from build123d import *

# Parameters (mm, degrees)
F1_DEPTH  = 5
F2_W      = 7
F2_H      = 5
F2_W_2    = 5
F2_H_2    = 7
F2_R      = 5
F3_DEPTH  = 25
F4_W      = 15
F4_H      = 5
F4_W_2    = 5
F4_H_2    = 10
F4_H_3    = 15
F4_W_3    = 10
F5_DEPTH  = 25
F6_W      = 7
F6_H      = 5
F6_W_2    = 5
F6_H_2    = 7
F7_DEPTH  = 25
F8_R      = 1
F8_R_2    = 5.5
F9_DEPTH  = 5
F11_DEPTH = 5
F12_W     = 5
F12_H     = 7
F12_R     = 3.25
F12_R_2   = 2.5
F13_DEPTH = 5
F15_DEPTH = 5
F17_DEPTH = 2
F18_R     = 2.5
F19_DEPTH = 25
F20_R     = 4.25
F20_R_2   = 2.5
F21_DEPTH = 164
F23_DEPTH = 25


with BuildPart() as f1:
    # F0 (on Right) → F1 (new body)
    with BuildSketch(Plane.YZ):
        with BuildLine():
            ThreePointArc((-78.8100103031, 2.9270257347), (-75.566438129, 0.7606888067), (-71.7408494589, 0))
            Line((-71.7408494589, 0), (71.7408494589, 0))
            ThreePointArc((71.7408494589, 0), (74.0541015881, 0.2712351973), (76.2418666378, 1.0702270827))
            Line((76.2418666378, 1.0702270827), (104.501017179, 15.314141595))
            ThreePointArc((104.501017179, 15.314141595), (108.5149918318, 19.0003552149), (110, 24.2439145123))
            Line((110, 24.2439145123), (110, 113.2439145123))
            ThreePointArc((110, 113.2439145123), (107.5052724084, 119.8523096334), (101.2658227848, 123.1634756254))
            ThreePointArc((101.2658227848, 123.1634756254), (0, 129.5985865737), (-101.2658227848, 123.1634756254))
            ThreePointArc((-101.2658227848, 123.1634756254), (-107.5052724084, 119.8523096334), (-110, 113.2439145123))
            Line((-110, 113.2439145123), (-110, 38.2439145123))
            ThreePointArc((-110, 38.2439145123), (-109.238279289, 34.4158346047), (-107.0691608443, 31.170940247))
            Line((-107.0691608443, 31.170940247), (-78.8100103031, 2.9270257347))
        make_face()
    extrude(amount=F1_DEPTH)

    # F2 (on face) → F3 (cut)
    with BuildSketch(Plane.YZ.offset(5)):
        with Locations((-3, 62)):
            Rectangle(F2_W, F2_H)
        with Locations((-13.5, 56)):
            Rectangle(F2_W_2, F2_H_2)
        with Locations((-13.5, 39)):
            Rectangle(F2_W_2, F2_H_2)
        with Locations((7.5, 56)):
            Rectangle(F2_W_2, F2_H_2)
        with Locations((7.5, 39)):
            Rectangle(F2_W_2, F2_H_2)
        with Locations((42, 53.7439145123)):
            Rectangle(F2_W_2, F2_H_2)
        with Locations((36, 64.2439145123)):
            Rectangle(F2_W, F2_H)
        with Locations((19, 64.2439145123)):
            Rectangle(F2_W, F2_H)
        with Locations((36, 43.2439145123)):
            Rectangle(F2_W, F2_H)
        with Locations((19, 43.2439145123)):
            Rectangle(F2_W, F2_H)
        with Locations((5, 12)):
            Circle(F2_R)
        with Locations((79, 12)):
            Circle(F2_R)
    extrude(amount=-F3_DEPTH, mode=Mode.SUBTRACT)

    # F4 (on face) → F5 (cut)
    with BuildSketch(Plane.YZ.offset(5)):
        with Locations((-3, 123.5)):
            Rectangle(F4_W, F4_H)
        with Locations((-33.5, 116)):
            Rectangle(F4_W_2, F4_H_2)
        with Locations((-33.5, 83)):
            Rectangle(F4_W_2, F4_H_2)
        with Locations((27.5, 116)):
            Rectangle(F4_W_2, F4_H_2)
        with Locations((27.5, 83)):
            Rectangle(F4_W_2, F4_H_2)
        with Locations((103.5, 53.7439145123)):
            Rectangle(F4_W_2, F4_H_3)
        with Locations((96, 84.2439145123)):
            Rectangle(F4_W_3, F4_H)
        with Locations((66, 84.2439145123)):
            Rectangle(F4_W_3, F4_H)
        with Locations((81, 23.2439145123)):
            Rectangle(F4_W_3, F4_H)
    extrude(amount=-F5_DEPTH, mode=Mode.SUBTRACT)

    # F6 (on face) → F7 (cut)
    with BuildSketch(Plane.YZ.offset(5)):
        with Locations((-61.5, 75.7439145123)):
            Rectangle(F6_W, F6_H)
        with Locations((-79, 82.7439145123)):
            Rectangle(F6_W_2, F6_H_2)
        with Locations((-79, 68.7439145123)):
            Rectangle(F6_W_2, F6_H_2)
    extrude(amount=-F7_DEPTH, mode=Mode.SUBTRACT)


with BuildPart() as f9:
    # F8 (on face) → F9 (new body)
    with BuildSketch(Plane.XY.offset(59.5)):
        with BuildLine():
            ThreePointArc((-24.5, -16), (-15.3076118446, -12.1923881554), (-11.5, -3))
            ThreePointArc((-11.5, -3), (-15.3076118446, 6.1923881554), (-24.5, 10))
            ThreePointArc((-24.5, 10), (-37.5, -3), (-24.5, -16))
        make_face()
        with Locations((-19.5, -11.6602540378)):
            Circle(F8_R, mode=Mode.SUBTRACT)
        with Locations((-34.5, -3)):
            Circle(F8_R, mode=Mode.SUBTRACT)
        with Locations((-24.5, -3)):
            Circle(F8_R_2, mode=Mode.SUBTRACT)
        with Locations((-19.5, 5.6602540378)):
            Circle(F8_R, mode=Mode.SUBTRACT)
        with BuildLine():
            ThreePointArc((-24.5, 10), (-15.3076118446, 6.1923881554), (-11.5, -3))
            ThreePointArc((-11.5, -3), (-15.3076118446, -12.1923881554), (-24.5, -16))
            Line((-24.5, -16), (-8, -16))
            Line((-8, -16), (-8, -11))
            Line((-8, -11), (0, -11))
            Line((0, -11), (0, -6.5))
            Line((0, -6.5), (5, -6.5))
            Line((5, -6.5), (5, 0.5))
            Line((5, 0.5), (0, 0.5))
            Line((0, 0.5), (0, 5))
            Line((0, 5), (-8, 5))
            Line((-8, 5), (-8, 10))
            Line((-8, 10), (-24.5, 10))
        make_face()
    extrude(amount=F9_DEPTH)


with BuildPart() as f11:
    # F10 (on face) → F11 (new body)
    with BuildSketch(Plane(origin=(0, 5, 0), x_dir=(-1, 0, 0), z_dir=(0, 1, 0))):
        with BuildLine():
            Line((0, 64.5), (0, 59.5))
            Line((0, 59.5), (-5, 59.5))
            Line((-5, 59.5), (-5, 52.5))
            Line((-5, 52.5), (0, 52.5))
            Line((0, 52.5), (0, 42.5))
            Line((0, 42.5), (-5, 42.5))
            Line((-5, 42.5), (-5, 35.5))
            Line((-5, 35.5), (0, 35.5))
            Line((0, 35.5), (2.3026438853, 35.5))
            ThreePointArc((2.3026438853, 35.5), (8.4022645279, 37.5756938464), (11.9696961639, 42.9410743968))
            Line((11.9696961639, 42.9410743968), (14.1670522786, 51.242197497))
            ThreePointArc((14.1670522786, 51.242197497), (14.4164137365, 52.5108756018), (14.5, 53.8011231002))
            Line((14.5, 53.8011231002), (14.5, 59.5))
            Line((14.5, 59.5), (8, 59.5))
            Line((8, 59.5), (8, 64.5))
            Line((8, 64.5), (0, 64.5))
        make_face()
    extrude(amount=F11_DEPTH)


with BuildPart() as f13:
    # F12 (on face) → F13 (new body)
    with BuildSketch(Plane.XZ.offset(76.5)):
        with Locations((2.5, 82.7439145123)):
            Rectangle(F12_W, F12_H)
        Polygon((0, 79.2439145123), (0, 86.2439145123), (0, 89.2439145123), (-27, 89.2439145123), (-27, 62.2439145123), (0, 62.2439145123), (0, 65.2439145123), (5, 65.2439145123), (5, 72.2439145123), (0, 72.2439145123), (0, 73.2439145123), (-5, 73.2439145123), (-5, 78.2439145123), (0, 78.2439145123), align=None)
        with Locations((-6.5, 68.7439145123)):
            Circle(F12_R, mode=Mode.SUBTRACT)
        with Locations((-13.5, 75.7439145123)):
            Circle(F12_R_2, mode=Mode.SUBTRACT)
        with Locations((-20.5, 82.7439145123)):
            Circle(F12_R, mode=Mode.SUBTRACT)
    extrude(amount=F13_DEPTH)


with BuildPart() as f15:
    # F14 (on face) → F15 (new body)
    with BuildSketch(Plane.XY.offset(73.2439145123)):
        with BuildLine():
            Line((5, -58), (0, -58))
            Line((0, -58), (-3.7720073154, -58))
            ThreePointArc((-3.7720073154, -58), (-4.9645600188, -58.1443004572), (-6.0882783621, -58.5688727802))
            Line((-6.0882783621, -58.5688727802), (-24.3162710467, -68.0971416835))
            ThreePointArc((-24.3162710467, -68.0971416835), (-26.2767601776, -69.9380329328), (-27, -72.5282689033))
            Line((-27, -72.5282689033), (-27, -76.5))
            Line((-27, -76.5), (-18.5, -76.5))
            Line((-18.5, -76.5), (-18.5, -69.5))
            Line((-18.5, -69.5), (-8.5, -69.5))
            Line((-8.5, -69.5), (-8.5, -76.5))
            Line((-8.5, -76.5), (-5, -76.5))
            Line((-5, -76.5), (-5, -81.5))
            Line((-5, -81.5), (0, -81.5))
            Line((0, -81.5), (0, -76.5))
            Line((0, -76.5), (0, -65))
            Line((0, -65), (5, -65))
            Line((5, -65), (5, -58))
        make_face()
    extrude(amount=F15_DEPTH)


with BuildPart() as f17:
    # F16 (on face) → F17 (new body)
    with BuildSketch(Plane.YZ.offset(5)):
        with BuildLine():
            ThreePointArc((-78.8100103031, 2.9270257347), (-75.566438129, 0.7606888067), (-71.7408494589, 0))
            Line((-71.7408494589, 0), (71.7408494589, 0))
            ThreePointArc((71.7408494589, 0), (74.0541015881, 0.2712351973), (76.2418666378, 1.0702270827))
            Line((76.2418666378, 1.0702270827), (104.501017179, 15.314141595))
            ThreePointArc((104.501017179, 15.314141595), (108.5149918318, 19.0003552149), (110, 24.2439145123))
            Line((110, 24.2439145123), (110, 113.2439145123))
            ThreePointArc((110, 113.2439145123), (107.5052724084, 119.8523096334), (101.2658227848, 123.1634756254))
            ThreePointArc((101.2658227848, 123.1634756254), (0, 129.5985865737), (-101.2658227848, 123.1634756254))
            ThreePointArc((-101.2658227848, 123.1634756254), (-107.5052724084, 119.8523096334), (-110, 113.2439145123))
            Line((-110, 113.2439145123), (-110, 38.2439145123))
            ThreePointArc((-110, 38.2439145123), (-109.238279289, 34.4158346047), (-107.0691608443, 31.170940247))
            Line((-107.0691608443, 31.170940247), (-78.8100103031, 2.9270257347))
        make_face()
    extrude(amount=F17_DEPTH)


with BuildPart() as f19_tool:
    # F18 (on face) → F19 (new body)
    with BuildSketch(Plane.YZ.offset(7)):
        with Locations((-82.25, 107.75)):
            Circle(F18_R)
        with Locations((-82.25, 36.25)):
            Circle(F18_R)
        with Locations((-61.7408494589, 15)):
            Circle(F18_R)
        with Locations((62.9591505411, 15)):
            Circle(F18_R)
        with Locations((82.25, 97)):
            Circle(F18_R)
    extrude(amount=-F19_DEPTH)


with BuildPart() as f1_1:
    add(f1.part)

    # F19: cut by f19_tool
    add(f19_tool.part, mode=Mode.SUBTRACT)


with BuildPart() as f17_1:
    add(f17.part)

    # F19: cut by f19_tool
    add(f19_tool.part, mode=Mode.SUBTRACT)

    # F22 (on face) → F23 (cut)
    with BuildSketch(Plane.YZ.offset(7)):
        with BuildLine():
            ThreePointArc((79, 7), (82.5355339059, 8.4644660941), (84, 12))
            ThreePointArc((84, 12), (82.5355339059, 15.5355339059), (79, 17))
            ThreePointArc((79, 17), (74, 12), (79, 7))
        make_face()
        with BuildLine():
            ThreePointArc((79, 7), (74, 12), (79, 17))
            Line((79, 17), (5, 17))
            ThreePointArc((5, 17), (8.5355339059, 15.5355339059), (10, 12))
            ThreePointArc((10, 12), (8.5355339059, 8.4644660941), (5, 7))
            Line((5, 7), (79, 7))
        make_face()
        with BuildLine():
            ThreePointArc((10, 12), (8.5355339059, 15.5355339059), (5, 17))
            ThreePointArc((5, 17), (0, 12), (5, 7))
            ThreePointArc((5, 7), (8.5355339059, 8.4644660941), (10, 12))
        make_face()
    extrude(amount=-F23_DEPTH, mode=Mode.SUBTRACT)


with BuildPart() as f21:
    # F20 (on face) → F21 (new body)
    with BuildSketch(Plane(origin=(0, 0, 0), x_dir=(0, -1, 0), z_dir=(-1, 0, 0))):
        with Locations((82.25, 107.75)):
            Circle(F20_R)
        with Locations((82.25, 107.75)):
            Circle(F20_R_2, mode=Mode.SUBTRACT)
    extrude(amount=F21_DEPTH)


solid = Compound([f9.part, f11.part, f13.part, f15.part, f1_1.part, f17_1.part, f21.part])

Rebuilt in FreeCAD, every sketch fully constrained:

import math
import FreeCAD as App
import Part
import Sketcher
from FreeCAD import Vector
Q = App.Units.Quantity


def add_polygon(sketch, points):
    """Adds a closed chain of lines whose ends are joined by coincident constraints."""
    first, n = sketch.GeometryCount, len(points)
    for a, b in zip(points, points[1:] + points[:1]):
        sketch.addGeometry(Part.LineSegment(App.Vector(*a, 0), App.Vector(*b, 0)), False)
    for i in range(n):
        sketch.addConstraint(Sketcher.Constraint("Coincident", first + i, 2, first + (i + 1) % n, 1))

doc = App.newDocument("Part")
body = doc.addObject("PartDesign::Body", "Body")

# Sketch on YZ plane
sketch1 = doc.addObject("Sketcher::SketchObject", "Sketch")
body.addObject(sketch1)
sketch1.AttachmentSupport = (doc.YZ_Plane, [""])
sketch1.MapMode = "FlatFace"
sketch1.addGeometry([
    Part.ArcOfCircle(Part.Circle(Vector(-71.7, 10, 0), Vector(0, 0, 1), 10), math.radians(-135), math.radians(-90)),  # 0
    Part.LineSegment(Vector(-71.7, 0, 0), Vector(71.7, 0, 0)),  # 1
    Part.ArcOfCircle(Part.Circle(Vector(71.7, 10, 0), Vector(0, 0, 1), 10), math.radians(-90), math.radians(-63)),  # 2
    Part.LineSegment(Vector(76.2, 1.1, 0), Vector(104.5, 15.3, 0)),  # 3
    Part.ArcOfCircle(Part.Circle(Vector(100, 24.2, 0), Vector(0, 0, 1), 10), math.radians(-63), math.radians(0)),  # 4
    Part.LineSegment(Vector(110, 24.2, 0), Vector(110, 113.2, 0)),  # 5
    Part.ArcOfCircle(Part.Circle(Vector(100, 113.2, 0), Vector(0, 0, 1), 10), math.radians(0), math.radians(83)),  # 6
    Part.ArcOfCircle(Part.Circle(Vector(0, -670.4, 0), Vector(0, 0, 1), 800), math.radians(82.73), math.radians(97.27)),  # 7
    Part.ArcOfCircle(Part.Circle(Vector(-100, 113.2, 0), Vector(0, 0, 1), 10), math.radians(97), math.radians(180)),  # 8
    Part.LineSegment(Vector(-110, 113.2, 0), Vector(-110, 38.2, 0)),  # 9
    Part.ArcOfCircle(Part.Circle(Vector(-100, 38.2, 0), Vector(0, 0, 1), 10), math.radians(180), math.radians(225)),  # 10
    Part.LineSegment(Vector(-107.1, 31.2, 0), Vector(-78.8, 2.9, 0)),  # 11
], False)
sketch1.addConstraint([
    Sketcher.Constraint("Tangent", 0, 2, 1, 1),
    Sketcher.Constraint("Tangent", 1, 2, 2, 1),
    Sketcher.Constraint("Tangent", 2, 2, 3, 1),
    Sketcher.Constraint("Tangent", 3, 2, 4, 1),
    Sketcher.Constraint("Tangent", 4, 2, 5, 1),
    Sketcher.Constraint("Tangent", 5, 2, 6, 1),
    Sketcher.Constraint("Tangent", 6, 2, 7, 1),
    Sketcher.Constraint("Tangent", 7, 2, 8, 1),
    Sketcher.Constraint("Tangent", 8, 2, 9, 1),
    Sketcher.Constraint("Tangent", 9, 2, 10, 1),
    Sketcher.Constraint("Tangent", 10, 2, 11, 1),
    Sketcher.Constraint("Tangent", 11, 2, 0, 1),
    Sketcher.Constraint("Horizontal", 1),
    Sketcher.Constraint("Vertical", 5),
    Sketcher.Constraint("Vertical", 9),
    Sketcher.Constraint("Equal", 0, 2),
    Sketcher.Constraint("Equal", 2, 4),
    Sketcher.Constraint("Equal", 4, 6),
    Sketcher.Constraint("Equal", 6, 8),
    Sketcher.Constraint("Equal", 8, 10),
    Sketcher.Constraint("Symmetric", 0, 2, 1, 2, -1, 1),
    Sketcher.Constraint("Symmetric", 6, 3, 8, 3, -2),
    Sketcher.Constraint("Radius", 0, Q("10 mm")),
    Sketcher.Constraint("Radius", 7, Q("800 mm")),
    Sketcher.Constraint("DistanceY", 5, 1, 5, 2, Q("89 mm")),
    Sketcher.Constraint("DistanceY", 9, 2, 9, 1, Q("75 mm")),
    Sketcher.Constraint("DistanceX", -1, 1, 4, 3, Q("100 mm")),
    Sketcher.Constraint("DistanceX", 1, 1, 1, 2, Q("143.481699 mm")),
    Sketcher.Constraint("Distance", 11, Q("39.953702 mm")),
])
pad1 = doc.addObject("PartDesign::Pad", "Pad")
body.addObject(pad1)
pad1.Profile = sketch1
pad1.Length = 5

# Sketch on YZ plane
sketch2 = doc.addObject("Sketcher::SketchObject", "Sketch001")
body.addObject(sketch2)
sketch2.AttachmentSupport = (doc.YZ_Plane, [""])
sketch2.MapMode = "FlatFace"
sketch2.AttachmentOffset = App.Placement(Vector(0, 0, 5), App.Rotation())
add_polygon(sketch2, [(-6, 64), (-6, 60), (0, 60), (0, 64)])  # lines 0-3
add_polygon(sketch2, [(-16, 60), (-16, 52), (-11, 52), (-11, 60)])  # lines 4-7
add_polygon(sketch2, [(-16, 42), (-16, 36), (-11, 36), (-11, 42)])  # lines 8-11
add_polygon(sketch2, [(5, 60), (5, 52), (10, 52), (10, 60)])  # lines 12-15
add_polygon(sketch2, [(5, 42), (5, 36), (10, 36), (10, 42)])  # lines 16-19
add_polygon(sketch2, [(40, 57), (40, 50), (44, 50), (44, 57)])  # lines 20-23
add_polygon(sketch2, [(32, 67), (32, 62), (40, 62), (40, 67)])  # lines 24-27
add_polygon(sketch2, [(16, 67), (16, 62), (22, 62), (22, 67)])  # lines 28-31
add_polygon(sketch2, [(32, 46), (32, 41), (40, 41), (40, 46)])  # lines 32-35
add_polygon(sketch2, [(16, 46), (16, 41), (22, 41), (22, 46)])  # lines 36-39
sketch2.addGeometry(Part.Circle(Vector(5, 12, 0), Vector(0, 0, 1), 5), False)  # 40
sketch2.addGeometry(Part.Circle(Vector(79, 12, 0), Vector(0, 0, 1), 5), False)  # 41
sketch2.addConstraint([
    Sketcher.Constraint("Vertical", 0),
    Sketcher.Constraint("Horizontal", 1),
    Sketcher.Constraint("Vertical", 2),
    Sketcher.Constraint("Horizontal", 3),
    Sketcher.Constraint("Vertical", 4),
    Sketcher.Constraint("Horizontal", 5),
    Sketcher.Constraint("Vertical", 6),
    Sketcher.Constraint("Horizontal", 7),
    Sketcher.Constraint("Vertical", 8),
    Sketcher.Constraint("Horizontal", 9),
    Sketcher.Constraint("Vertical", 10),
    Sketcher.Constraint("Horizontal", 11),
    Sketcher.Constraint("Vertical", 12),
    Sketcher.Constraint("Horizontal", 13),
    Sketcher.Constraint("Vertical", 14),
    Sketcher.Constraint("Horizontal", 15),
    Sketcher.Constraint("Vertical", 16),
    Sketcher.Constraint("Horizontal", 17),
    Sketcher.Constraint("Vertical", 18),
    Sketcher.Constraint("Horizontal", 19),
    Sketcher.Constraint("Vertical", 20),
    Sketcher.Constraint("Horizontal", 21),
    Sketcher.Constraint("Vertical", 22),
    Sketcher.Constraint("Horizontal", 23),
    Sketcher.Constraint("Vertical", 24),
    Sketcher.Constraint("Horizontal", 25),
    Sketcher.Constraint("Vertical", 26),
    Sketcher.Constraint("Horizontal", 27),
    Sketcher.Constraint("Vertical", 28),
    Sketcher.Constraint("Horizontal", 29),
    Sketcher.Constraint("Vertical", 30),
    Sketcher.Constraint("Horizontal", 31),
    Sketcher.Constraint("Vertical", 32),
    Sketcher.Constraint("Horizontal", 33),
    Sketcher.Constraint("Vertical", 34),
    Sketcher.Constraint("Horizontal", 35),
    Sketcher.Constraint("Vertical", 36),
    Sketcher.Constraint("Horizontal", 37),
    Sketcher.Constraint("Vertical", 38),
    Sketcher.Constraint("Horizontal", 39),
    Sketcher.Constraint("Equal", 40, 41),
    Sketcher.Constraint("Horizontal", 40, 3, 41, 3),
    Sketcher.Constraint("Horizontal", 1, 2, 6, 2),
    Sketcher.Constraint("Horizontal", 5, 2, 12, 2),
    Sketcher.Constraint("Horizontal", 7, 2, 14, 2),
    Sketcher.Constraint("Horizontal", 9, 2, 16, 2),
    Sketcher.Constraint("Horizontal", 11, 2, 18, 2),
    Sketcher.Constraint("Horizontal", 25, 2, 28, 2),
    Sketcher.Constraint("Horizontal", 27, 2, 30, 2),
    Sketcher.Constraint("Horizontal", 33, 2, 36, 2),
    Sketcher.Constraint("Horizontal", 35, 2, 38, 2),
    Sketcher.Constraint("Vertical", 7, 2, 8, 2),
    Sketcher.Constraint("Vertical", 6, 2, 9, 2),
    Sketcher.Constraint("Vertical", 40, 3, 12, 2),
    Sketcher.Constraint("Vertical", 15, 2, 16, 2),
    Sketcher.Constraint("Vertical", 14, 2, 17, 2),
    Sketcher.Constraint("Vertical", 23, 2, 25, 2),
    Sketcher.Constraint("Vertical", 27, 2, 32, 2),
    Sketcher.Constraint("Vertical", 26, 2, 33, 2),
    Sketcher.Constraint("Vertical", 31, 2, 36, 2),
    Sketcher.Constraint("Vertical", 30, 2, 37, 2),
    Sketcher.Constraint("Equal", 11, 13),
    Sketcher.Constraint("Equal", 19, 21),
    Sketcher.Constraint("Equal", 3, 25),
    Sketcher.Constraint("Equal", 27, 29),
    Sketcher.Constraint("Equal", 23, 0),
    Sketcher.Constraint("Equal", 39, 4),
    Sketcher.Constraint("Equal", 6, 8),
    Sketcher.Constraint("Equal", 18, 20),
    Sketcher.Constraint("Equal", 2, 24),
    Sketcher.Constraint("Equal", 30, 32),
    Sketcher.Constraint("Diameter", 40, Q("10 mm")),
    Sketcher.Constraint("DistanceX", 1, 1, 1, 2, Q("7 mm")),
    Sketcher.Constraint("DistanceX", 5, 1, 5, 2, Q("5 mm")),
    Sketcher.Constraint("DistanceX", -1, 1, 40, 3, Q("5 mm")),
    Sketcher.Constraint("DistanceY", -1, 1, 40, 3, Q("12 mm")),
    Sketcher.Constraint("DistanceX", -1, 1, 41, 3, Q("79 mm")),
    Sketcher.Constraint("DistanceX", 4, 2, -1, 1, Q("16 mm")),
    Sketcher.Constraint("DistanceY", 8, 2, 4, 2, Q("17 mm")),
    Sketcher.Constraint("DistanceX", 1, 2, 28, 2, Q("15 mm")),
    Sketcher.Constraint("DistanceX", 29, 2, 24, 2, Q("10 mm")),
    Sketcher.Constraint("DistanceY", 32, 2, 24, 2, Q("21 mm")),
    Sketcher.Constraint("DistanceX", 0, 2, -1, 1, Q("6.5 mm")),
    Sketcher.Constraint("DistanceY", -1, 1, 0, 2, Q("59.5 mm")),
    Sketcher.Constraint("DistanceY", 23, 2, 24, 2, Q("4.5 mm")),
    Sketcher.Constraint("DistanceY", -1, 1, 20, 2, Q("50.243915 mm")),
])
pocket1 = doc.addObject("PartDesign::Pocket", "Pocket")
body.addObject(pocket1)
pocket1.Profile = sketch2
pocket1.Length = 25

# Sketch on YZ plane
sketch3 = doc.addObject("Sketcher::SketchObject", "Sketch002")
body.addObject(sketch3)
sketch3.AttachmentSupport = (doc.YZ_Plane, [""])
sketch3.MapMode = "FlatFace"
sketch3.AttachmentOffset = App.Placement(Vector(0, 0, 5), App.Rotation())
add_polygon(sketch3, [(-10, 126), (-10, 121), (4, 121), (4, 126)])  # lines 0-3
add_polygon(sketch3, [(-36, 121), (-36, 111), (-31, 111), (-31, 121)])  # lines 4-7
add_polygon(sketch3, [(-36, 88), (-36, 78), (-31, 78), (-31, 88)])  # lines 8-11
add_polygon(sketch3, [(25, 121), (25, 111), (30, 111), (30, 121)])  # lines 12-15
add_polygon(sketch3, [(25, 88), (25, 78), (30, 78), (30, 88)])  # lines 16-19
add_polygon(sketch3, [(101, 61), (101, 46), (106, 46), (106, 61)])  # lines 20-23
add_polygon(sketch3, [(91, 87), (91, 82), (101, 82), (101, 87)])  # lines 24-27
add_polygon(sketch3, [(61, 87), (61, 82), (71, 82), (71, 87)])  # lines 28-31
add_polygon(sketch3, [(76, 26), (76, 21), (86, 21), (86, 26)])  # lines 32-35
sketch3.addConstraint([
    Sketcher.Constraint("Vertical", 0),
    Sketcher.Constraint("Horizontal", 1),
    Sketcher.Constraint("Vertical", 2),
    Sketcher.Constraint("Horizontal", 3),
    Sketcher.Constraint("Vertical", 4),
    Sketcher.Constraint("Horizontal", 5),
    Sketcher.Constraint("Vertical", 6),
    Sketcher.Constraint("Horizontal", 7),
    Sketcher.Constraint("Vertical", 8),
    Sketcher.Constraint("Horizontal", 9),
    Sketcher.Constraint("Vertical", 10),
    Sketcher.Constraint("Horizontal", 11),
    Sketcher.Constraint("Vertical", 12),
    Sketcher.Constraint("Horizontal", 13),
    Sketcher.Constraint("Vertical", 14),
    Sketcher.Constraint("Horizontal", 15),
    Sketcher.Constraint("Vertical", 16),
    Sketcher.Constraint("Horizontal", 17),
    Sketcher.Constraint("Vertical", 18),
    Sketcher.Constraint("Horizontal", 19),
    Sketcher.Constraint("Vertical", 20),
    Sketcher.Constraint("Horizontal", 21),
    Sketcher.Constraint("Vertical", 22),
    Sketcher.Constraint("Horizontal", 23),
    Sketcher.Constraint("Vertical", 24),
    Sketcher.Constraint("Horizontal", 25),
    Sketcher.Constraint("Vertical", 26),
    Sketcher.Constraint("Horizontal", 27),
    Sketcher.Constraint("Vertical", 28),
    Sketcher.Constraint("Horizontal", 29),
    Sketcher.Constraint("Vertical", 30),
    Sketcher.Constraint("Horizontal", 31),
    Sketcher.Constraint("Vertical", 32),
    Sketcher.Constraint("Horizontal", 33),
    Sketcher.Constraint("Vertical", 34),
    Sketcher.Constraint("Horizontal", 35),
    Sketcher.Constraint("Horizontal", 1, 2, 6, 2),
    Sketcher.Constraint("Horizontal", 5, 2, 12, 2),
    Sketcher.Constraint("Horizontal", 7, 2, 14, 2),
    Sketcher.Constraint("Horizontal", 9, 2, 16, 2),
    Sketcher.Constraint("Horizontal", 11, 2, 18, 2),
    Sketcher.Constraint("Horizontal", 25, 2, 28, 2),
    Sketcher.Constraint("Horizontal", 27, 2, 30, 2),
    Sketcher.Constraint("Vertical", 7, 2, 8, 2),
    Sketcher.Constraint("Vertical", 6, 2, 9, 2),
    Sketcher.Constraint("Vertical", 15, 2, 16, 2),
    Sketcher.Constraint("Vertical", 14, 2, 17, 2),
    Sketcher.Constraint("Vertical", 23, 2, 25, 2),
    Sketcher.Constraint("Equal", 11, 13),
    Sketcher.Constraint("Equal", 19, 21),
    Sketcher.Constraint("Equal", 27, 29),
    Sketcher.Constraint("Equal", 31, 33),
    Sketcher.Constraint("Equal", 23, 0),
    Sketcher.Constraint("Equal", 35, 4),
    Sketcher.Constraint("Equal", 6, 8),
    Sketcher.Constraint("Equal", 3, 20),
    Sketcher.Constraint("Equal", 2, 24),
    Sketcher.Constraint("Equal", 30, 32),
    Sketcher.Constraint("DistanceX", 1, 1, 1, 2, Q("15 mm")),
    Sketcher.Constraint("DistanceX", 5, 1, 5, 2, Q("5 mm")),
    Sketcher.Constraint("DistanceX", 25, 1, 25, 2, Q("10 mm")),
    Sketcher.Constraint("DistanceY", -1, 1, 0, 2, Q("121 mm")),
    Sketcher.Constraint("DistanceX", 4, 2, -1, 1, Q("36 mm")),
    Sketcher.Constraint("DistanceY", -1, 1, 8, 2, Q("78 mm")),
    Sketcher.Constraint("DistanceX", -1, 1, 12, 2, Q("25 mm")),
    Sketcher.Constraint("DistanceX", -1, 1, 20, 2, Q("101 mm")),
    Sketcher.Constraint("DistanceX", -1, 1, 28, 2, Q("61 mm")),
    Sketcher.Constraint("DistanceX", -1, 1, 32, 2, Q("76 mm")),
    Sketcher.Constraint("DistanceY", 32, 2, 29, 2, Q("61 mm")),
    Sketcher.Constraint("DistanceX", 0, 2, -1, 1, Q("10.5 mm")),
    Sketcher.Constraint("DistanceY", 23, 2, 24, 2, Q("20.5 mm")),
    Sketcher.Constraint("DistanceY", -1, 1, 20, 2, Q("46.243915 mm")),
])
pocket2 = doc.addObject("PartDesign::Pocket", "Pocket001")
body.addObject(pocket2)
pocket2.Profile = sketch3
pocket2.Length = 25

# Sketch on YZ plane
sketch4 = doc.addObject("Sketcher::SketchObject", "Sketch003")
body.addObject(sketch4)
sketch4.AttachmentSupport = (doc.YZ_Plane, [""])
sketch4.MapMode = "FlatFace"
sketch4.AttachmentOffset = App.Placement(Vector(0, 0, 5), App.Rotation())
add_polygon(sketch4, [(-65, 78), (-65, 73), (-58, 73), (-58, 78)])  # lines 0-3
add_polygon(sketch4, [(-82, 86), (-82, 79), (-76, 79), (-76, 86)])  # lines 4-7
add_polygon(sketch4, [(-82, 72), (-82, 65), (-76, 65), (-76, 72)])  # lines 8-11
sketch4.addConstraint([
    Sketcher.Constraint("Vertical", 0),
    Sketcher.Constraint("Horizontal", 1),
    Sketcher.Constraint("Vertical", 2),
    Sketcher.Constraint("Horizontal", 3),
    Sketcher.Constraint("Vertical", 4),
    Sketcher.Constraint("Horizontal", 5),
    Sketcher.Constraint("Vertical", 6),
    Sketcher.Constraint("Horizontal", 7),
    Sketcher.Constraint("Vertical", 8),
    Sketcher.Constraint("Horizontal", 9),
    Sketcher.Constraint("Vertical", 10),
    Sketcher.Constraint("Horizontal", 11),
    Sketcher.Constraint("Vertical", 7, 2, 8, 2),
    Sketcher.Constraint("Vertical", 6, 2, 9, 2),
    Sketcher.Constraint("Equal", 11, 0),
    Sketcher.Constraint("Equal", 3, 4),
    Sketcher.Constraint("Equal", 6, 8),
    Sketcher.Constraint("DistanceX", 1, 1, 1, 2, Q("7 mm")),
    Sketcher.Constraint("DistanceX", 5, 1, 5, 2, Q("5 mm")),
    Sketcher.Constraint("DistanceX", 0, 2, -1, 1, Q("65 mm")),
    Sketcher.Constraint("DistanceY", 3, 2, 4, 2, Q("1 mm")),
    Sketcher.Constraint("DistanceY", 8, 2, 4, 2, Q("14 mm")),
    Sketcher.Constraint("DistanceX", 4, 2, -1, 1, Q("81.5 mm")),
    Sketcher.Constraint("DistanceY", -1, 1, 0, 2, Q("73.243915 mm")),
])
pocket3 = doc.addObject("PartDesign::Pocket", "Pocket002")
body.addObject(pocket3)
pocket3.Profile = sketch4
pocket3.Length = 25
body2 = doc.addObject("PartDesign::Body", "Body001")

# Sketch on XY plane
sketch5 = doc.addObject("Sketcher::SketchObject", "Sketch004")
body2.addObject(sketch5)
sketch5.AttachmentSupport = (doc.getObject("XY_Plane001"), [""])
sketch5.MapMode = "FlatFace"
sketch5.AttachmentOffset = App.Placement(Vector(0, 0, 59.5), App.Rotation())
sketch5.addGeometry([
    Part.ArcOfCircle(Part.Circle(Vector(-24.5, -3, 0), Vector(0, 0, 1), 13), math.radians(90), math.radians(270)),  # 0
    Part.LineSegment(Vector(-24.5, -16, 0), Vector(-8, -16, 0)),  # 1
    Part.LineSegment(Vector(-8, -16, 0), Vector(-8, -11, 0)),  # 2
    Part.LineSegment(Vector(-8, -11, 0), Vector(0, -11, 0)),  # 3
    Part.LineSegment(Vector(0, -11, 0), Vector(0, -6.5, 0)),  # 4
    Part.LineSegment(Vector(0, -6.5, 0), Vector(5, -6.5, 0)),  # 5
    Part.LineSegment(Vector(5, -6.5, 0), Vector(5, 0.5, 0)),  # 6
    Part.LineSegment(Vector(5, 0.5, 0), Vector(0, 0.5, 0)),  # 7
    Part.LineSegment(Vector(0, 0.5, 0), Vector(0, 5, 0)),  # 8
    Part.LineSegment(Vector(0, 5, 0), Vector(-8, 5, 0)),  # 9
    Part.LineSegment(Vector(-8, 5, 0), Vector(-8, 10, 0)),  # 10
    Part.LineSegment(Vector(-8, 10, 0), Vector(-24.5, 10, 0)),  # 11
    Part.Circle(Vector(-19.5, -11.7, 0), Vector(0, 0, 1), 1),  # 12
    Part.Circle(Vector(-34.5, -3, 0), Vector(0, 0, 1), 1),  # 13
    Part.Circle(Vector(-24.5, -3, 0), Vector(0, 0, 1), 5.5),  # 14
    Part.Circle(Vector(-19.5, 5.7, 0), Vector(0, 0, 1), 1),  # 15
], False)
sketch5.addConstraint([
    Sketcher.Constraint("Tangent", 0, 2, 1, 1),
    Sketcher.Constraint("Coincident", 1, 2, 2, 1),
    Sketcher.Constraint("Coincident", 2, 2, 3, 1),
    Sketcher.Constraint("Coincident", 3, 2, 4, 1),
    Sketcher.Constraint("Coincident", 4, 2, 5, 1),
    Sketcher.Constraint("Coincident", 5, 2, 6, 1),
    Sketcher.Constraint("Coincident", 6, 2, 7, 1),
    Sketcher.Constraint("Coincident", 7, 2, 8, 1),
    Sketcher.Constraint("Coincident", 8, 2, 9, 1),
    Sketcher.Constraint("Coincident", 9, 2, 10, 1),
    Sketcher.Constraint("Coincident", 10, 2, 11, 1),
    Sketcher.Constraint("Tangent", 11, 2, 0, 1),
    Sketcher.Constraint("Horizontal", 1),
    Sketcher.Constraint("Vertical", 2),
    Sketcher.Constraint("Horizontal", 3),
    Sketcher.Constraint("Vertical", 4),
    Sketcher.Constraint("Horizontal", 5),
    Sketcher.Constraint("Vertical", 6),
    Sketcher.Constraint("Horizontal", 7),
    Sketcher.Constraint("Vertical", 8),
    Sketcher.Constraint("Horizontal", 9),
    Sketcher.Constraint("Vertical", 10),
    Sketcher.Constraint("Horizontal", 11),
    Sketcher.Constraint("Coincident", 14, 3, 0, 3),
    Sketcher.Constraint("Equal", 12, 13),
    Sketcher.Constraint("Equal", 13, 15),
    Sketcher.Constraint("PointOnObject", 3, 2, -2),
    Sketcher.Constraint("PointOnObject", 7, 2, -2),
    Sketcher.Constraint("Horizontal", 0, 3, 13, 3),
    Sketcher.Constraint("Vertical", 12, 3, 15, 3),
    Sketcher.Constraint("Vertical", 2, 2, 9, 2),
    Sketcher.Constraint("Equal", 7, 2),
    Sketcher.Constraint("Equal", 4, 8),
    Sketcher.Constraint("Equal", 2, 10),
    Sketcher.Constraint("Diameter", 12, Q("2 mm")),
    Sketcher.Constraint("Diameter", 14, Q("11 mm")),
    Sketcher.Constraint("Radius", 0, Q("13 mm")),
    Sketcher.Constraint("DistanceX", 3, 1, 3, 2, Q("8 mm")),
    Sketcher.Constraint("DistanceX", 5, 1, 5, 2, Q("5 mm")),
    Sketcher.Constraint("DistanceY", 6, 1, 6, 2, Q("7 mm")),
    Sketcher.Constraint("DistanceX", 1, 1, 1, 2, Q("16.5 mm")),
    Sketcher.Constraint("DistanceY", 0, 3, -1, 1, Q("3 mm")),
    Sketcher.Constraint("DistanceX", 0, 3, 12, 3, Q("5 mm")),
    Sketcher.Constraint("DistanceX", 13, 3, 0, 3, Q("10 mm")),
    Sketcher.Constraint("DistanceY", 12, 3, 15, 3, Q("17.320508 mm")),
    Sketcher.Constraint("DistanceY", 12, 3, -1, 1, Q("11.660254 mm")),
])
pad2 = doc.addObject("PartDesign::Pad", "Pad001")
body2.addObject(pad2)
pad2.Profile = sketch5
pad2.Length = 5
body3 = doc.addObject("PartDesign::Body", "Body002")

# Sketch on XZ plane
sketch6 = doc.addObject("Sketcher::SketchObject", "Sketch005")
body3.addObject(sketch6)
sketch6.AttachmentSupport = (doc.getObject("XZ_Plane002"), [""])
sketch6.MapMode = "FlatFace"
sketch6.AttachmentOffset = App.Placement(Vector(0, 0, -5), App.Rotation())
sketch6.addGeometry([
    Part.LineSegment(Vector(0, 64.5, 0), Vector(0, 59.5, 0)),  # 0
    Part.LineSegment(Vector(0, 59.5, 0), Vector(5, 59.5, 0)),  # 1
    Part.LineSegment(Vector(5, 59.5, 0), Vector(5, 52.5, 0)),  # 2
    Part.LineSegment(Vector(5, 52.5, 0), Vector(0, 52.5, 0)),  # 3
    Part.LineSegment(Vector(0, 52.5, 0), Vector(0, 42.5, 0)),  # 4
    Part.LineSegment(Vector(0, 42.5, 0), Vector(5, 42.5, 0)),  # 5
    Part.LineSegment(Vector(5, 42.5, 0), Vector(5, 35.5, 0)),  # 6
    Part.LineSegment(Vector(5, 35.5, 0), Vector(-2.3, 35.5, 0)),  # 7
    Part.ArcOfCircle(Part.Circle(Vector(-2.3, 45.5, 0), Vector(0, 0, 1), 10), math.radians(-165), math.radians(-90)),  # 8
    Part.LineSegment(Vector(-12, 42.9, 0), Vector(-14.2, 51.2, 0)),  # 9
    Part.ArcOfCircle(Part.Circle(Vector(-4.5, 53.8, 0), Vector(0, 0, 1), 10), math.radians(180), math.radians(194.83)),  # 10
    Part.LineSegment(Vector(-14.5, 53.8, 0), Vector(-14.5, 59.5, 0)),  # 11
    Part.LineSegment(Vector(-14.5, 59.5, 0), Vector(-8, 59.5, 0)),  # 12
    Part.LineSegment(Vector(-8, 59.5, 0), Vector(-8, 64.5, 0)),  # 13
    Part.LineSegment(Vector(-8, 64.5, 0), Vector(0, 64.5, 0)),  # 14
], False)
sketch6.addConstraint([
    Sketcher.Constraint("Coincident", 0, 2, 1, 1),
    Sketcher.Constraint("Coincident", 1, 2, 2, 1),
    Sketcher.Constraint("Coincident", 2, 2, 3, 1),
    Sketcher.Constraint("Coincident", 3, 2, 4, 1),
    Sketcher.Constraint("Coincident", 4, 2, 5, 1),
    Sketcher.Constraint("Coincident", 5, 2, 6, 1),
    Sketcher.Constraint("Coincident", 6, 2, 7, 1),
    Sketcher.Constraint("Tangent", 7, 2, 8, 2),
    Sketcher.Constraint("Tangent", 8, 1, 9, 1),
    Sketcher.Constraint("Tangent", 9, 2, 10, 2),
    Sketcher.Constraint("Tangent", 10, 1, 11, 1),
    Sketcher.Constraint("Coincident", 11, 2, 12, 1),
    Sketcher.Constraint("Coincident", 12, 2, 13, 1),
    Sketcher.Constraint("Coincident", 13, 2, 14, 1),
    Sketcher.Constraint("Coincident", 14, 2, 0, 1),
    Sketcher.Constraint("Vertical", 0),
    Sketcher.Constraint("Horizontal", 1),
    Sketcher.Constraint("Vertical", 2),
    Sketcher.Constraint("Horizontal", 3),
    Sketcher.Constraint("Vertical", 4),
    Sketcher.Constraint("Horizontal", 5),
    Sketcher.Constraint("Vertical", 6),
    Sketcher.Constraint("Horizontal", 7),
    Sketcher.Constraint("Vertical", 11),
    Sketcher.Constraint("Horizontal", 12),
    Sketcher.Constraint("Vertical", 13),
    Sketcher.Constraint("Horizontal", 14),
    Sketcher.Constraint("Equal", 8, 10),
    Sketcher.Constraint("PointOnObject", 0, 2, -2),
    Sketcher.Constraint("PointOnObject", 3, 2, -2),
    Sketcher.Constraint("Horizontal", 1, 2, 11, 2),
    Sketcher.Constraint("Vertical", 2, 2, 5, 2),
    Sketcher.Constraint("Equal", 5, 0),
    Sketcher.Constraint("Equal", 2, 6),
    Sketcher.Constraint("Radius", 8, Q("10 mm")),
    Sketcher.Constraint("DistanceX", 1, 1, 1, 2, Q("5 mm")),
    Sketcher.Constraint("DistanceX", 14, 1, 14, 2, Q("8 mm")),
    Sketcher.Constraint("DistanceY", 2, 2, 2, 1, Q("7 mm")),
    Sketcher.Constraint("DistanceY", 4, 2, 4, 1, Q("10 mm")),
    Sketcher.Constraint("DistanceX", 12, 1, 12, 2, Q("6.5 mm")),
    Sketcher.Constraint("DistanceY", -1, 1, 8, 3, Q("45.5 mm")),
    Sketcher.Constraint("DistanceX", 7, 2, 7, 1, Q("7.302644 mm")),
    Sketcher.Constraint("DistanceY", 11, 1, 11, 2, Q("5.698877 mm")),
])
pad3 = doc.addObject("PartDesign::Pad", "Pad002")
body3.addObject(pad3)
pad3.Profile = sketch6
pad3.Length = 5
pad3.Reversed = True
body4 = doc.addObject("PartDesign::Body", "Body003")

# Sketch on XZ plane
sketch7 = doc.addObject("Sketcher::SketchObject", "Sketch006")
body4.addObject(sketch7)
sketch7.AttachmentSupport = (doc.getObject("XZ_Plane003"), [""])
sketch7.MapMode = "FlatFace"
sketch7.AttachmentOffset = App.Placement(Vector(0, 0, 76.5), App.Rotation())
add_polygon(sketch7, [(0, 79.2), (5, 79.2), (5, 86.2), (0, 86.2), (0, 89.2), (-27, 89.2), (-27, 62.2), (0, 62.2), (0, 65.2), (5, 65.2), (5, 72.2), (0, 72.2), (0, 73.2), (-5, 73.2), (-5, 78.2), (0, 78.2)])  # lines 0-15
sketch7.addGeometry(Part.Circle(Vector(-6.5, 68.7, 0), Vector(0, 0, 1), 3.2), False)  # 16
sketch7.addGeometry(Part.Circle(Vector(-20.5, 82.7, 0), Vector(0, 0, 1), 3.2), False)  # 17
sketch7.addGeometry(Part.Circle(Vector(-13.5, 75.7, 0), Vector(0, 0, 1), 2.5), False)  # 18
sketch7.addConstraint([
    Sketcher.Constraint("Horizontal", 0),
    Sketcher.Constraint("Vertical", 1),
    Sketcher.Constraint("Horizontal", 2),
    Sketcher.Constraint("Vertical", 3),
    Sketcher.Constraint("Horizontal", 4),
    Sketcher.Constraint("Vertical", 5),
    Sketcher.Constraint("Horizontal", 6),
    Sketcher.Constraint("Vertical", 7),
    Sketcher.Constraint("Horizontal", 8),
    Sketcher.Constraint("Vertical", 9),
    Sketcher.Constraint("Horizontal", 10),
    Sketcher.Constraint("Vertical", 11),
    Sketcher.Constraint("Horizontal", 12),
    Sketcher.Constraint("Vertical", 13),
    Sketcher.Constraint("Horizontal", 14),
    Sketcher.Constraint("Vertical", 15),
    Sketcher.Constraint("Equal", 16, 17),
    Sketcher.Constraint("PointOnObject", 2, 2, -2),
    Sketcher.Constraint("PointOnObject", 6, 2, -2),
    Sketcher.Constraint("PointOnObject", 10, 2, -2),
    Sketcher.Constraint("PointOnObject", 14, 2, -2),
    Sketcher.Constraint("Vertical", 1, 2, 8, 2),
    Sketcher.Constraint("Equal", 10, 12),
    Sketcher.Constraint("Equal", 6, 5),
    Sketcher.Constraint("Equal", 3, 7),
    Sketcher.Constraint("Equal", 1, 9),
    Sketcher.Constraint("Equal", 14, 13),
    Sketcher.Constraint("Equal", 11, 15),
    Sketcher.Constraint("Diameter", 18, Q("5 mm")),
    Sketcher.Constraint("Diameter", 16, Q("6.5 mm")),
    Sketcher.Constraint("DistanceX", 0, 1, 0, 2, Q("5 mm")),
    Sketcher.Constraint("DistanceX", 4, 2, 4, 1, Q("27 mm")),
    Sketcher.Constraint("DistanceY", 1, 1, 1, 2, Q("7 mm")),
    Sketcher.Constraint("DistanceY", 3, 1, 3, 2, Q("3 mm")),
    Sketcher.Constraint("DistanceX", 17, 3, 16, 3, Q("14 mm")),
    Sketcher.Constraint("DistanceY", 16, 3, 17, 3, Q("14 mm")),
    Sketcher.Constraint("DistanceX", 18, 3, 16, 3, Q("7 mm")),
    Sketcher.Constraint("DistanceY", 16, 3, 18, 3, Q("7 mm")),
    Sketcher.Constraint("DistanceX", 16, 3, -1, 1, Q("6.5 mm")),
    Sketcher.Constraint("DistanceY", 16, 3, 0, 2, Q("10.5 mm")),
    Sketcher.Constraint("DistanceY", -1, 1, 16, 3, Q("68.743915 mm")),
])
pad4 = doc.addObject("PartDesign::Pad", "Pad003")
body4.addObject(pad4)
pad4.Profile = sketch7
pad4.Length = 5
body5 = doc.addObject("PartDesign::Body", "Body004")

# Sketch on XY plane
sketch8 = doc.addObject("Sketcher::SketchObject", "Sketch007")
body5.addObject(sketch8)
sketch8.AttachmentSupport = (doc.getObject("XY_Plane004"), [""])
sketch8.MapMode = "FlatFace"
sketch8.AttachmentOffset = App.Placement(Vector(0, 0, 73.243915), App.Rotation())
sketch8.addGeometry([
    Part.LineSegment(Vector(5, -58, 0), Vector(-3.8, -58, 0)),  # 0
    Part.ArcOfCircle(Part.Circle(Vector(-3.8, -63, 0), Vector(0, 0, 1), 5), math.radians(90), math.radians(118)),  # 1
    Part.LineSegment(Vector(-6.1, -58.6, 0), Vector(-24.3, -68.1, 0)),  # 2
    Part.ArcOfCircle(Part.Circle(Vector(-22, -72.5, 0), Vector(0, 0, 1), 5), math.radians(118), math.radians(180)),  # 3
    Part.LineSegment(Vector(-27, -72.5, 0), Vector(-27, -76.5, 0)),  # 4
    Part.LineSegment(Vector(-27, -76.5, 0), Vector(-18.5, -76.5, 0)),  # 5
    Part.LineSegment(Vector(-18.5, -76.5, 0), Vector(-18.5, -69.5, 0)),  # 6
    Part.LineSegment(Vector(-18.5, -69.5, 0), Vector(-8.5, -69.5, 0)),  # 7
    Part.LineSegment(Vector(-8.5, -69.5, 0), Vector(-8.5, -76.5, 0)),  # 8
    Part.LineSegment(Vector(-8.5, -76.5, 0), Vector(-5, -76.5, 0)),  # 9
    Part.LineSegment(Vector(-5, -76.5, 0), Vector(-5, -81.5, 0)),  # 10
    Part.LineSegment(Vector(-5, -81.5, 0), Vector(0, -81.5, 0)),  # 11
    Part.LineSegment(Vector(0, -81.5, 0), Vector(0, -65, 0)),  # 12
    Part.LineSegment(Vector(0, -65, 0), Vector(5, -65, 0)),  # 13
    Part.LineSegment(Vector(5, -65, 0), Vector(5, -58, 0)),  # 14
], False)
sketch8.addConstraint([
    Sketcher.Constraint("Tangent", 0, 2, 1, 1),
    Sketcher.Constraint("Tangent", 1, 2, 2, 1),
    Sketcher.Constraint("Tangent", 2, 2, 3, 1),
    Sketcher.Constraint("Tangent", 3, 2, 4, 1),
    Sketcher.Constraint("Coincident", 4, 2, 5, 1),
    Sketcher.Constraint("Coincident", 5, 2, 6, 1),
    Sketcher.Constraint("Coincident", 6, 2, 7, 1),
    Sketcher.Constraint("Coincident", 7, 2, 8, 1),
    Sketcher.Constraint("Coincident", 8, 2, 9, 1),
    Sketcher.Constraint("Coincident", 9, 2, 10, 1),
    Sketcher.Constraint("Coincident", 10, 2, 11, 1),
    Sketcher.Constraint("Coincident", 11, 2, 12, 1),
    Sketcher.Constraint("Coincident", 12, 2, 13, 1),
    Sketcher.Constraint("Coincident", 13, 2, 14, 1),
    Sketcher.Constraint("Coincident", 14, 2, 0, 1),
    Sketcher.Constraint("Horizontal", 0),
    Sketcher.Constraint("Vertical", 4),
    Sketcher.Constraint("Horizontal", 5),
    Sketcher.Constraint("Vertical", 6),
    Sketcher.Constraint("Horizontal", 7),
    Sketcher.Constraint("Vertical", 8),
    Sketcher.Constraint("Horizontal", 9),
    Sketcher.Constraint("Vertical", 10),
    Sketcher.Constraint("Horizontal", 11),
    Sketcher.Constraint("Vertical", 12),
    Sketcher.Constraint("Horizontal", 13),
    Sketcher.Constraint("Vertical", 14),
    Sketcher.Constraint("Equal", 1, 3),
    Sketcher.Constraint("PointOnObject", 11, 2, -2),
    Sketcher.Constraint("Horizontal", 5, 2, 8, 2),
    Sketcher.Constraint("Equal", 11, 13),
    Sketcher.Constraint("Equal", 13, 10),
    Sketcher.Constraint("Equal", 8, 14),
    Sketcher.Constraint("Radius", 1, Q("5 mm")),
    Sketcher.Constraint("DistanceX", 7, 1, 7, 2, Q("10 mm")),
    Sketcher.Constraint("DistanceX", 11, 1, 11, 2, Q("5 mm")),
    Sketcher.Constraint("DistanceY", 6, 1, 6, 2, Q("7 mm")),
    Sketcher.Constraint("DistanceX", 5, 1, 5, 2, Q("8.5 mm")),
    Sketcher.Constraint("DistanceX", 9, 1, 9, 2, Q("3.5 mm")),
    Sketcher.Constraint("DistanceY", 12, 1, 12, 2, Q("16.5 mm")),
    Sketcher.Constraint("DistanceY", 1, 3, -1, 1, Q("63 mm")),
    Sketcher.Constraint("DistanceY", 4, 2, 4, 1, Q("3.971731 mm")),
    Sketcher.Constraint("Distance", 2, Q("20.568122 mm")),
])
pad5 = doc.addObject("PartDesign::Pad", "Pad004")
body5.addObject(pad5)
pad5.Profile = sketch8
pad5.Length = 5
body6 = doc.addObject("PartDesign::Body", "Body005")

# Sketch on YZ plane
sketch9 = doc.addObject("Sketcher::SketchObject", "Sketch008")
body6.addObject(sketch9)
sketch9.AttachmentSupport = (doc.getObject("YZ_Plane005"), [""])
sketch9.MapMode = "FlatFace"
sketch9.AttachmentOffset = App.Placement(Vector(0, 0, 5), App.Rotation())
sketch9.addGeometry([
    Part.ArcOfCircle(Part.Circle(Vector(-71.7, 10, 0), Vector(0, 0, 1), 10), math.radians(-135), math.radians(-90)),  # 0
    Part.LineSegment(Vector(-71.7, 0, 0), Vector(71.7, 0, 0)),  # 1
    Part.ArcOfCircle(Part.Circle(Vector(71.7, 10, 0), Vector(0, 0, 1), 10), math.radians(-90), math.radians(-63)),  # 2
    Part.LineSegment(Vector(76.2, 1.1, 0), Vector(104.5, 15.3, 0)),  # 3
    Part.ArcOfCircle(Part.Circle(Vector(100, 24.2, 0), Vector(0, 0, 1), 10), math.radians(-63), math.radians(0)),  # 4
    Part.LineSegment(Vector(110, 24.2, 0), Vector(110, 113.2, 0)),  # 5
    Part.ArcOfCircle(Part.Circle(Vector(100, 113.2, 0), Vector(0, 0, 1), 10), math.radians(0), math.radians(83)),  # 6
    Part.ArcOfCircle(Part.Circle(Vector(0, -670.4, 0), Vector(0, 0, 1), 800), math.radians(82.73), math.radians(97.27)),  # 7
    Part.ArcOfCircle(Part.Circle(Vector(-100, 113.2, 0), Vector(0, 0, 1), 10), math.radians(97), math.radians(180)),  # 8
    Part.LineSegment(Vector(-110, 113.2, 0), Vector(-110, 38.2, 0)),  # 9
    Part.ArcOfCircle(Part.Circle(Vector(-100, 38.2, 0), Vector(0, 0, 1), 10), math.radians(180), math.radians(225)),  # 10
    Part.LineSegment(Vector(-107.1, 31.2, 0), Vector(-78.8, 2.9, 0)),  # 11
], False)
sketch9.addConstraint([
    Sketcher.Constraint("Tangent", 0, 2, 1, 1),
    Sketcher.Constraint("Tangent", 1, 2, 2, 1),
    Sketcher.Constraint("Tangent", 2, 2, 3, 1),
    Sketcher.Constraint("Tangent", 3, 2, 4, 1),
    Sketcher.Constraint("Tangent", 4, 2, 5, 1),
    Sketcher.Constraint("Tangent", 5, 2, 6, 1),
    Sketcher.Constraint("Tangent", 6, 2, 7, 1),
    Sketcher.Constraint("Tangent", 7, 2, 8, 1),
    Sketcher.Constraint("Tangent", 8, 2, 9, 1),
    Sketcher.Constraint("Tangent", 9, 2, 10, 1),
    Sketcher.Constraint("Tangent", 10, 2, 11, 1),
    Sketcher.Constraint("Tangent", 11, 2, 0, 1),
    Sketcher.Constraint("Horizontal", 1),
    Sketcher.Constraint("Vertical", 5),
    Sketcher.Constraint("Vertical", 9),
    Sketcher.Constraint("Equal", 0, 2),
    Sketcher.Constraint("Equal", 2, 4),
    Sketcher.Constraint("Equal", 4, 6),
    Sketcher.Constraint("Equal", 6, 8),
    Sketcher.Constraint("Equal", 8, 10),
    Sketcher.Constraint("Symmetric", 0, 2, 1, 2, -1, 1),
    Sketcher.Constraint("Symmetric", 6, 3, 8, 3, -2),
    Sketcher.Constraint("Radius", 0, Q("10 mm")),
    Sketcher.Constraint("Radius", 7, Q("800 mm")),
    Sketcher.Constraint("DistanceY", 5, 1, 5, 2, Q("89 mm")),
    Sketcher.Constraint("DistanceY", 9, 2, 9, 1, Q("75 mm")),
    Sketcher.Constraint("DistanceX", -1, 1, 4, 3, Q("100 mm")),
    Sketcher.Constraint("DistanceX", 1, 1, 1, 2, Q("143.481699 mm")),
    Sketcher.Constraint("Distance", 11, Q("39.953702 mm")),
])
pad6 = doc.addObject("PartDesign::Pad", "Pad005")
body6.addObject(pad6)
pad6.Profile = sketch9
pad6.Length = 2
body7 = doc.addObject("PartDesign::Body", "Body006")
body7.AllowCompound = True

# Sketch on YZ plane
sketch10 = doc.addObject("Sketcher::SketchObject", "Sketch009")
body7.addObject(sketch10)
sketch10.AttachmentSupport = (doc.getObject("YZ_Plane006"), [""])
sketch10.MapMode = "FlatFace"
sketch10.AttachmentOffset = App.Placement(Vector(0, 0, 7), App.Rotation())
sketch10.addGeometry([
    Part.Circle(Vector(-82.2, 107.8, 0), Vector(0, 0, 1), 2.5),  # 0
    Part.Circle(Vector(-82.2, 36.2, 0), Vector(0, 0, 1), 2.5),  # 1
    Part.Circle(Vector(-61.7, 15, 0), Vector(0, 0, 1), 2.5),  # 2
    Part.Circle(Vector(63, 15, 0), Vector(0, 0, 1), 2.5),  # 3
    Part.Circle(Vector(82.2, 97, 0), Vector(0, 0, 1), 2.5),  # 4
], False)
sketch10.addConstraint([
    Sketcher.Constraint("Equal", 0, 1),
    Sketcher.Constraint("Equal", 1, 2),
    Sketcher.Constraint("Equal", 2, 3),
    Sketcher.Constraint("Equal", 3, 4),
    Sketcher.Constraint("Horizontal", 2, 3, 3, 3),
    Sketcher.Constraint("Vertical", 0, 3, 1, 3),
    Sketcher.Constraint("Diameter", 0, Q("5 mm")),
    Sketcher.Constraint("DistanceY", -1, 1, 2, 3, Q("15 mm")),
    Sketcher.Constraint("DistanceY", -1, 1, 4, 3, Q("97 mm")),
    Sketcher.Constraint("DistanceY", 1, 3, 0, 3, Q("71.5 mm")),
    Sketcher.Constraint("DistanceX", 2, 3, 3, 3, Q("124.7 mm")),
    Sketcher.Constraint("DistanceX", 0, 3, 4, 3, Q("164.5 mm")),
    Sketcher.Constraint("DistanceX", 0, 3, -1, 1, Q("82.25 mm")),
    Sketcher.Constraint("DistanceY", -1, 1, 0, 3, Q("107.75 mm")),
    Sketcher.Constraint("DistanceX", 2, 3, -1, 1, Q("61.740849 mm")),
])
pad7 = doc.addObject("PartDesign::Pad", "Pad006")
body7.addObject(pad7)
pad7.Profile = sketch10
pad7.Length = 25
pad7.Reversed = True
doc.recompute()

body8 = doc.addObject("PartDesign::Body", "Body007")
body8.BaseFeature = body7
boolean = doc.addObject("PartDesign::Boolean", "Boolean")
body.addObject(boolean)
boolean.Type = "Cut"
boolean.addObjects([body8])
doc.recompute()

boolean2 = doc.addObject("PartDesign::Boolean", "Boolean001")
body6.addObject(boolean2)
boolean2.Type = "Cut"
boolean2.addObjects([body7])

# Sketch on YZ plane
sketch11 = doc.addObject("Sketcher::SketchObject", "Sketch010")
body6.addObject(sketch11)
sketch11.AttachmentSupport = (doc.getObject("YZ_Plane005"), [""])
sketch11.MapMode = "FlatFace"
sketch11.AttachmentOffset = App.Placement(Vector(0, 0, 7), App.Rotation())
sketch11.addGeometry([
    Part.ArcOfCircle(Part.Circle(Vector(79, 12, 0), Vector(0, 0, 1), 5), math.radians(-90), math.radians(0)),  # 0
    Part.ArcOfCircle(Part.Circle(Vector(79, 12, 0), Vector(0, 0, 1), 5), math.radians(0), math.radians(90)),  # 1
    Part.LineSegment(Vector(79, 17, 0), Vector(5, 17, 0)),  # 2
    Part.ArcOfCircle(Part.Circle(Vector(5, 12, 0), Vector(0, 0, 1), 5), math.radians(90), math.radians(270)),  # 3
    Part.LineSegment(Vector(5, 7, 0), Vector(79, 7, 0)),  # 4
], False)
sketch11.addConstraint([
    Sketcher.Constraint("Tangent", 0, 2, 1, 1),
    Sketcher.Constraint("Tangent", 1, 2, 2, 1),
    Sketcher.Constraint("Tangent", 2, 2, 3, 1),
    Sketcher.Constraint("Tangent", 3, 2, 4, 1),
    Sketcher.Constraint("Tangent", 4, 2, 0, 1),
    Sketcher.Constraint("Horizontal", 2),
    Sketcher.Constraint("Horizontal", 4),
    Sketcher.Constraint("Equal", 0, 1),
    Sketcher.Constraint("Horizontal", 3, 3, 0, 2),
    Sketcher.Constraint("Radius", 0, Q("5 mm")),
    Sketcher.Constraint("DistanceX", 2, 2, 2, 1, Q("74 mm")),
    Sketcher.Constraint("DistanceX", -1, 1, 0, 3, Q("79 mm")),
    Sketcher.Constraint("DistanceY", -1, 1, 0, 3, Q("12 mm")),
])
pocket4 = doc.addObject("PartDesign::Pocket", "Pocket003")
body6.addObject(pocket4)
pocket4.Profile = sketch11
pocket4.Length = 25
body9 = doc.addObject("PartDesign::Body", "Body008")

# Sketch on YZ plane
sketch12 = doc.addObject("Sketcher::SketchObject", "Sketch011")
body9.addObject(sketch12)
sketch12.AttachmentSupport = (doc.getObject("YZ_Plane008"), [""])
sketch12.MapMode = "FlatFace"
sketch12.addGeometry([
    Part.Circle(Vector(-82.2, 107.8, 0), Vector(0, 0, 1), 4.2),
    Part.Circle(Vector(-82.2, 107.8, 0), Vector(0, 0, 1), 2.5),
], False)
sketch12.addConstraint([
    Sketcher.Constraint("Coincident", 1, 3, 0, 3),
    Sketcher.Constraint("Diameter", 1, Q("5 mm")),
    Sketcher.Constraint("Diameter", 0, Q("8.5 mm")),
    Sketcher.Constraint("DistanceX", 0, 3, -1, 1, Q("82.25 mm")),
    Sketcher.Constraint("DistanceY", -1, 1, 0, 3, Q("107.75 mm")),
])
pad8 = doc.addObject("PartDesign::Pad", "Pad007")
body9.addObject(pad8)
pad8.Profile = sketch12
pad8.Length = 164
pad8.Reversed = True

doc.recompute()
